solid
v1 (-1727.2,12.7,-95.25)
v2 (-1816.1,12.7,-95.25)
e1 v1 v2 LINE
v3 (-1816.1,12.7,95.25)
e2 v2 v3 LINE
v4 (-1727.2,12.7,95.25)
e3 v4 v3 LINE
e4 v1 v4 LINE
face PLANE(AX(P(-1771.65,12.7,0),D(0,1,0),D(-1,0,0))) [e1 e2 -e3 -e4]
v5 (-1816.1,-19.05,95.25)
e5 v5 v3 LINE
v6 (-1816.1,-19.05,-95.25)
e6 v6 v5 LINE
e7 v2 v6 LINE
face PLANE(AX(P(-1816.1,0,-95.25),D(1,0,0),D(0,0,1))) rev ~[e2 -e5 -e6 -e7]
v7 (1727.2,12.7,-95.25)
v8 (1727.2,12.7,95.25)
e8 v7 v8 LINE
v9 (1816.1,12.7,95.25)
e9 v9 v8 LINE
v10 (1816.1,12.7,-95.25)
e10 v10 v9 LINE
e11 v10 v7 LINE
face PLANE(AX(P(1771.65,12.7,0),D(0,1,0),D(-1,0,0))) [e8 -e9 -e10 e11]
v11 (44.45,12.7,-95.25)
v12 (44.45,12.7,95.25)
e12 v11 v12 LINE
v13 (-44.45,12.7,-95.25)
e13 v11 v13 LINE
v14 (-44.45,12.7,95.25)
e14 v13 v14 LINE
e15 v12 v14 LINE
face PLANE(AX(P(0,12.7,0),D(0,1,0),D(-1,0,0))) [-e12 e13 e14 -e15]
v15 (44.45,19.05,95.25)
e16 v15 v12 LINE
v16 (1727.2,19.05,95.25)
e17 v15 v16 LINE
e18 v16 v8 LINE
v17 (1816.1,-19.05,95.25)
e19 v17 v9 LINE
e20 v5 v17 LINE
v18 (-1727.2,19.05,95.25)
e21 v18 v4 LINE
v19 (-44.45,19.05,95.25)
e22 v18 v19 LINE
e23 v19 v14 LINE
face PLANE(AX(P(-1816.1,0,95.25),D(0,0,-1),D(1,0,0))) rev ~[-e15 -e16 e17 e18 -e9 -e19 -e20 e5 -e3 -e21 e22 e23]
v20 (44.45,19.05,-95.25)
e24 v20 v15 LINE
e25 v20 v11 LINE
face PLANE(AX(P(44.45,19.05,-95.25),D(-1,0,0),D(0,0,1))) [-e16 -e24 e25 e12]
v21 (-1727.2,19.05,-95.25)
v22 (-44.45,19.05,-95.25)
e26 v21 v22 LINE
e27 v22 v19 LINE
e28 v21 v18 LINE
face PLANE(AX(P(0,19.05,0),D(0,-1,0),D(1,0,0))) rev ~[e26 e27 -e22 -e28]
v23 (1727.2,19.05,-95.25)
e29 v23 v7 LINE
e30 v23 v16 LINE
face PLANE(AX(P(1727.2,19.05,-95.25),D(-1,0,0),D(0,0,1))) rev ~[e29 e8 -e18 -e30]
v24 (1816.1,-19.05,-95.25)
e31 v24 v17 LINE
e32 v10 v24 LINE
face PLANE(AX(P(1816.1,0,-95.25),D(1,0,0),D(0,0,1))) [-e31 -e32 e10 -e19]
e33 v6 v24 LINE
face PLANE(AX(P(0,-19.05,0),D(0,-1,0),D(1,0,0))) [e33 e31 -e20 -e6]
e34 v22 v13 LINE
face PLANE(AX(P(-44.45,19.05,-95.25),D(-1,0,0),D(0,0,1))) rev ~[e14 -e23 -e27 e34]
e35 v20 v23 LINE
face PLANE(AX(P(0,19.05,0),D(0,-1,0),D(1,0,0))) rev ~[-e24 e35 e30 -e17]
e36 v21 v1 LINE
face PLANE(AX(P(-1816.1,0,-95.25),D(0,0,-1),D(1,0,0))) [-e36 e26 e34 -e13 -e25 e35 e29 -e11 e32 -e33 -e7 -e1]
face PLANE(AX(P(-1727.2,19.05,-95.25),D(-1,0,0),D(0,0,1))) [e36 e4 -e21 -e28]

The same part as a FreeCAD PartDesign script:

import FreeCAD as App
import Part
import Sketcher

V = App.Vector
Q = App.Units.Quantity


def add_polygon(sketch, points):
    """Adds a closed chain of lines whose ends are joined by coincident constraints."""
    first, n = sketch.GeometryCount, len(points)
    for a, b in zip(points, points[1:] + points[:1]):
        sketch.addGeometry(Part.LineSegment(App.Vector(*a, 0), App.Vector(*b, 0)), False)
    for i in range(n):
        sketch.addConstraint(Sketcher.Constraint("Coincident", first + i, 2, first + (i + 1) % n, 1))

doc = App.newDocument("Part")
body = doc.addObject("PartDesign::Body", "Body")

# Sketch on XZ plane
sketch1 = doc.addObject("Sketcher::SketchObject", "Sketch")
body.addObject(sketch1)
sketch1.AttachmentSupport = (doc.XZ_Plane, [""])
sketch1.MapMode = "FlatFace"
add_polygon(sketch1, [(-1816.1, 95.25), (-1816.1, -95.25), (1816.1, -95.25), (1816.1, 95.25)])  # lines 0-3
sketch1.addConstraint([
    Sketcher.Constraint("Vertical", 0),
    Sketcher.Constraint("Horizontal", 1),
    Sketcher.Constraint("Vertical", 2),
    Sketcher.Constraint("Horizontal", 3),
    Sketcher.Constraint("Symmetric", 0, 2, 2, 2, -1, 1),
    Sketcher.Constraint("DistanceX", 1, 1, 1, 2, Q("143 in")),
    Sketcher.Constraint("DistanceY", 0, 2, 0, 1, Q("7.5 in")),
])
pad1 = doc.addObject("PartDesign::Pad", "Pad")
body.addObject(pad1)
pad1.Profile = sketch1
pad1.Length = Q("1.5 in")
pad1.Midplane = True

# Sketch on XZ plane
sketch2 = doc.addObject("Sketcher::SketchObject", "Sketch001")
body.addObject(sketch2)
sketch2.AttachmentSupport = (doc.XZ_Plane, [""])
sketch2.MapMode = "FlatFace"
sketch2.AttachmentOffset = App.Placement(V(0, 0, -0.75 * 25.4), App.Rotation())
add_polygon(sketch2, [(1816.1, 95.25), (1816.1, -95.25), (1727.2, -95.25), (1727.2, 95.25)])  # lines 0-3
add_polygon(sketch2, [(44.45, 95.25), (44.45, -95.25), (-44.45, -95.25), (-44.45, 95.25)])  # lines 4-7
add_polygon(sketch2, [(-1727.2, 95.25), (-1727.2, -95.25), (-1816.1, -95.25), (-1816.1, 95.25)])  # lines 8-11
sketch2.addConstraint([
    Sketcher.Constraint("Vertical", 0),
    Sketcher.Constraint("Horizontal", 1),
    Sketcher.Constraint("Vertical", 2),
    Sketcher.Constraint("Horizontal", 3),
    Sketcher.Constraint("Vertical", 4),
    Sketcher.Constraint("Horizontal", 5),
    Sketcher.Constraint("Vertical", 6),
    Sketcher.Constraint("Horizontal", 7),
    Sketcher.Constraint("Vertical", 8),
    Sketcher.Constraint("Horizontal", 9),
    Sketcher.Constraint("Vertical", 10),
    Sketcher.Constraint("Horizontal", 11),
    Sketcher.Constraint("Symmetric", 4, 2, 6, 2, -1, 1),
    Sketcher.Constraint("Symmetric", 2, 2, 8, 2, -1, 1),
    Sketcher.Constraint("Symmetric", 0, 2, 10, 2, -1, 1),
    Sketcher.Constraint("Horizontal", 1, 2, 4, 2),
    Sketcher.Constraint("Horizontal", 3, 2, 6, 2),
    Sketcher.Constraint("Equal", 3, 5),
    Sketcher.Constraint("DistanceX", 1, 2, 1, 1, Q("3.5 in")),
    Sketcher.Constraint("DistanceY", 0, 2, 0, 1, Q("7.5 in")),
    Sketcher.Constraint("DistanceX", -1, 1, 1, 2, Q("68 in")),
])
pocket1 = doc.addObject("PartDesign::Pocket", "Pocket")
body.addObject(pocket1)
pocket1.Profile = sketch2
pocket1.Length = Q("0.25 in")
pocket1.Reversed = True

doc.recompute()
